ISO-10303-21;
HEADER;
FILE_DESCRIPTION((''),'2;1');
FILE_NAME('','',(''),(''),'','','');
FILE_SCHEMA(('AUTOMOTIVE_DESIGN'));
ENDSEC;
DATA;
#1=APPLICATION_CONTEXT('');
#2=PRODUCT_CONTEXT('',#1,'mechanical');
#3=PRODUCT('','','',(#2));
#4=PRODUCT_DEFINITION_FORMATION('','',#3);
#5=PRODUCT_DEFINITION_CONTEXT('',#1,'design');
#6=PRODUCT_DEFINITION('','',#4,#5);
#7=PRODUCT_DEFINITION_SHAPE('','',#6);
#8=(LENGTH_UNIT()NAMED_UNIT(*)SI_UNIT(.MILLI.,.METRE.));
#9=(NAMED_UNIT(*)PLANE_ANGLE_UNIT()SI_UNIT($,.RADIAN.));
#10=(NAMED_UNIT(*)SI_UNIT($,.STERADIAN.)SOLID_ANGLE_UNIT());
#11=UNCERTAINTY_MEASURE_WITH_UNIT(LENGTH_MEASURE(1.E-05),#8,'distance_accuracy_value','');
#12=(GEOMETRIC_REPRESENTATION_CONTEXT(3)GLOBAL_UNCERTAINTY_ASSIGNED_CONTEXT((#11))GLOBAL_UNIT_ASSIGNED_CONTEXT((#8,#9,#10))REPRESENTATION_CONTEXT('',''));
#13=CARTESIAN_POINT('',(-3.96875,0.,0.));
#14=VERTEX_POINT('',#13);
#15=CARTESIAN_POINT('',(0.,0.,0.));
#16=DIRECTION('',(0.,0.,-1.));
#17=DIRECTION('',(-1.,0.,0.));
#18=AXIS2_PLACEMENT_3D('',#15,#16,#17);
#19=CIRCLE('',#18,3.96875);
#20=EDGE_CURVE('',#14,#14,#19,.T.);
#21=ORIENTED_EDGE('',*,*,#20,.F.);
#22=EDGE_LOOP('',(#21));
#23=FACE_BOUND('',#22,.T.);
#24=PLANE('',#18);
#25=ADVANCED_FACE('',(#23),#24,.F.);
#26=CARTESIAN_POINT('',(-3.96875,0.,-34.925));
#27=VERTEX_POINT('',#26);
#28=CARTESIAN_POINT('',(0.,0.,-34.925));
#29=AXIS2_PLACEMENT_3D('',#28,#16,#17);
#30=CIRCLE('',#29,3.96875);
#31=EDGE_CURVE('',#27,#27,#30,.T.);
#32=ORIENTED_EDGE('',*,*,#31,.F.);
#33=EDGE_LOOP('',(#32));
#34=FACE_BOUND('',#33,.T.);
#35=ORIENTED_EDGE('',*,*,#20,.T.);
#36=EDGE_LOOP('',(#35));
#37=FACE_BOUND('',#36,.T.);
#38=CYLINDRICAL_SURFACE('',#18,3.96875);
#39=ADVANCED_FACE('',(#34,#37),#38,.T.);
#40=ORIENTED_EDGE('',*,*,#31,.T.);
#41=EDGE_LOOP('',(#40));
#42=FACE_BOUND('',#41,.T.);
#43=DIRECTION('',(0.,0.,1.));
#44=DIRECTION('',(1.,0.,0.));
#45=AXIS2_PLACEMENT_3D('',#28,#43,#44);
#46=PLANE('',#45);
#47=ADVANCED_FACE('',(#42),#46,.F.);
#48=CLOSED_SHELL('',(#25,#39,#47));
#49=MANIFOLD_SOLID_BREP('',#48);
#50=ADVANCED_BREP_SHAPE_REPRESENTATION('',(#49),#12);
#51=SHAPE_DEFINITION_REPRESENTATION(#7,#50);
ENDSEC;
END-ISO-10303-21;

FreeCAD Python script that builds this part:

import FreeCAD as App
import Part
import Sketcher
Q = App.Units.Quantity


def add_polygon(sketch, points):
    """Adds a closed chain of lines whose ends are joined by coincident constraints."""
    first, n = sketch.GeometryCount, len(points)
    for a, b in zip(points, points[1:] + points[:1]):
        sketch.addGeometry(Part.LineSegment(App.Vector(*a, 0), App.Vector(*b, 0)), False)
    for i in range(n):
        sketch.addConstraint(Sketcher.Constraint("Coincident", first + i, 2, first + (i + 1) % n, 1))

doc = App.newDocument("Part")
body = doc.addObject("PartDesign::Body", "Body")

sketch1 = body.newObject("Sketcher::SketchObject", "Sketch")
sketch1.AttachmentSupport = (doc.getObject("YZ_Plane"), [""])
sketch1.MapMode = "FlatFace"
add_polygon(sketch1, [(0, 0), (-3.96875, 0), (-3.96875, -34.925), (0, -34.925)])
sketch1.addConstraint([
    Sketcher.Constraint("Horizontal", 0),
    Sketcher.Constraint("Vertical", 1),
    Sketcher.Constraint("Horizontal", 2),
    Sketcher.Constraint("Vertical", 3),
    Sketcher.Constraint("Coincident", 3, 2, -1, 1),
    Sketcher.Constraint("DistanceX", 0, 2, 0, 1, Q("0.15625 in")),
    Sketcher.Constraint("DistanceY", 1, 2, 1, 1, Q("1.375 in")),
])
revolution = body.newObject("PartDesign::Revolution", "Revolution")
revolution.Profile = sketch1
revolution.ReferenceAxis = (sketch1, ["V_Axis"])
revolution.Angle = 360

doc.recompute()
